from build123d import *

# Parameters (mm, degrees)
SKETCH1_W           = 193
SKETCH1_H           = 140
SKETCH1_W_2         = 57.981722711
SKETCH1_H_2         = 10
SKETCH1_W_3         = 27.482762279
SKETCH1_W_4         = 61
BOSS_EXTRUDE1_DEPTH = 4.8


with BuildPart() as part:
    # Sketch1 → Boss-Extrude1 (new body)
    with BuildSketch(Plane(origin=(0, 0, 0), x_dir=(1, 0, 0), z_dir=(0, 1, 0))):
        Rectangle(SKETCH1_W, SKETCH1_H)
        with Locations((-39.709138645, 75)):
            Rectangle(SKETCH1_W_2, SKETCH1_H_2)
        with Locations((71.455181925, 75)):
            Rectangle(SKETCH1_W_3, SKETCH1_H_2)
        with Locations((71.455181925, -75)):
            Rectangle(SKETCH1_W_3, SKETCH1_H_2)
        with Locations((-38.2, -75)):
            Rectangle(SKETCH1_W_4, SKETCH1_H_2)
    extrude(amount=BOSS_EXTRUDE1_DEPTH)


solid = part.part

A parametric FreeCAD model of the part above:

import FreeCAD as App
import Part
import Sketcher

doc = App.newDocument("Part")
body = doc.addObject("PartDesign::Body", "Body")

sketch1 = body.newObject("Sketcher::SketchObject", "Sketch")
sketch1.AttachmentSupport = (doc.getObject("XZ_Plane"), [""])
sketch1.MapMode = "FlatFace"
sketch1.addGeometry([
    Part.LineSegment(App.Vector(-96.5, -70, 0), App.Vector(-96.5, 70, 0)),
    Part.LineSegment(App.Vector(-96.5, 70, 0), App.Vector(-68.7, 70, 0)),
    Part.LineSegment(App.Vector(-68.7, 70, 0), App.Vector(-68.7, 80, 0)),
    Part.LineSegment(App.Vector(-68.7, 80, 0), App.Vector(-7.7, 80, 0)),
    Part.LineSegment(App.Vector(-7.7, 80, 0), App.Vector(-7.7, 70, 0)),
    Part.LineSegment(App.Vector(-7.7, 70, 0), App.Vector(57.713801, 70, 0)),
    Part.LineSegment(App.Vector(57.713801, 70, 0), App.Vector(57.713801, 80, 0)),
    Part.LineSegment(App.Vector(57.713801, 80, 0), App.Vector(85.196563, 80, 0)),
    Part.LineSegment(App.Vector(85.196563, 80, 0), App.Vector(85.196563, 70, 0)),
    Part.LineSegment(App.Vector(85.196563, 70, 0), App.Vector(96.5, 70, 0)),
    Part.LineSegment(App.Vector(96.5, 70, 0), App.Vector(96.5, -70, 0)),
    Part.LineSegment(App.Vector(96.5, -70, 0), App.Vector(85.196563, -70, 0)),
    Part.LineSegment(App.Vector(85.196563, -70, 0), App.Vector(85.196563, -80, 0)),
    Part.LineSegment(App.Vector(85.196563, -80, 0), App.Vector(57.713801, -80, 0)),
    Part.LineSegment(App.Vector(57.713801, -80, 0), App.Vector(57.713801, -70, 0)),
    Part.LineSegment(App.Vector(57.713801, -70, 0), App.Vector(-10.718277, -70, 0)),
    Part.LineSegment(App.Vector(-10.718277, -70, 0), App.Vector(-10.718277, -80, 0)),
    Part.LineSegment(App.Vector(-10.718277, -80, 0), App.Vector(-68.7, -80, 0)),
    Part.LineSegment(App.Vector(-68.7, -80, 0), App.Vector(-68.7, -70, 0)),
    Part.LineSegment(App.Vector(-68.7, -70, 0), App.Vector(-96.5, -70, 0)),
], False)
sketch1.addConstraint([
    Sketcher.Constraint("Coincident", 0, 2, 1, 1),
    Sketcher.Constraint("Coincident", 1, 2, 2, 1),
    Sketcher.Constraint("Coincident", 2, 2, 3, 1),
    Sketcher.Constraint("Coincident", 3, 2, 4, 1),
    Sketcher.Constraint("Coincident", 4, 2, 5, 1),
    Sketcher.Constraint("Coincident", 5, 2, 6, 1),
    Sketcher.Constraint("Coincident", 6, 2, 7, 1),
    Sketcher.Constraint("Coincident", 7, 2, 8, 1),
    Sketcher.Constraint("Coincident", 8, 2, 9, 1),
    Sketcher.Constraint("Coincident", 9, 2, 10, 1),
    Sketcher.Constraint("Coincident", 10, 2, 11, 1),
    Sketcher.Constraint("Coincident", 11, 2, 12, 1),
    Sketcher.Constraint("Coincident", 12, 2, 13, 1),
    Sketcher.Constraint("Coincident", 13, 2, 14, 1),
    Sketcher.Constraint("Coincident", 14, 2, 15, 1),
    Sketcher.Constraint("Coincident", 15, 2, 16, 1),
    Sketcher.Constraint("Coincident", 16, 2, 17, 1),
    Sketcher.Constraint("Coincident", 17, 2, 18, 1),
    Sketcher.Constraint("Coincident", 18, 2, 19, 1),
    Sketcher.Constraint("Coincident", 19, 2, 0, 1),
    Sketcher.Constraint("Vertical", 0),
    Sketcher.Constraint("Horizontal", 1),
    Sketcher.Constraint("Vertical", 2),
    Sketcher.Constraint("Horizontal", 3),
    Sketcher.Constraint("Vertical", 4),
    Sketcher.Constraint("Horizontal", 5),
    Sketcher.Constraint("Vertical", 6),
    Sketcher.Constraint("Horizontal", 7),
    Sketcher.Constraint("Vertical", 8),
    Sketcher.Constraint("Horizontal", 9),
    Sketcher.Constraint("Vertical", 10),
    Sketcher.Constraint("Horizontal", 11),
    Sketcher.Constraint("Vertical", 12),
    Sketcher.Constraint("Horizontal", 13),
    Sketcher.Constraint("Vertical", 14),
    Sketcher.Constraint("Horizontal", 15),
    Sketcher.Constraint("Vertical", 16),
    Sketcher.Constraint("Horizontal", 17),
    Sketcher.Constraint("Vertical", 18),
    Sketcher.Constraint("Horizontal", 19),
    Sketcher.Constraint("Symmetric", 0, 2, 10, 2, -1, 1),
    Sketcher.Constraint("Symmetric", 8, 2, 11, 2, -1),
    Sketcher.Constraint("Symmetric", 6, 2, 13, 2, -1),
    Sketcher.Constraint("Symmetric", 2, 2, 17, 2, -1),
    Sketcher.Constraint("Horizontal", 1, 2, 4, 2),
    Sketcher.Constraint("Horizontal", 3, 2, 6, 2),
    Sketcher.Constraint("Horizontal", 11, 2, 14, 2),
    Sketcher.Constraint("Horizontal", 15, 2, 18, 2),
    Sketcher.Constraint("DistanceX", 3, 1, 3, 2, 61.0),
    Sketcher.Constraint("DistanceY", 0, 1, 0, 2, 140.0),
    Sketcher.Constraint("DistanceY", 2, 1, 2, 2, 10.0),
    Sketcher.Constraint("DistanceX", 1, 1, 1, 2, 27.8),
    Sketcher.Constraint("DistanceX", 0, 2, -1, 1, 96.5),
    Sketcher.Constraint("DistanceX", 5, 1, 5, 2, 65.413801),
    Sketcher.Constraint("DistanceX", 15, 2, 15, 1, 68.432078),
    Sketcher.Constraint("DistanceX", 7, 1, 7, 2, 27.482762),
])
pad1 = body.newObject("PartDesign::Pad", "Pad")
pad1.Profile = sketch1
pad1.Length = 4.8
pad1.Reversed = True

doc.recompute()
